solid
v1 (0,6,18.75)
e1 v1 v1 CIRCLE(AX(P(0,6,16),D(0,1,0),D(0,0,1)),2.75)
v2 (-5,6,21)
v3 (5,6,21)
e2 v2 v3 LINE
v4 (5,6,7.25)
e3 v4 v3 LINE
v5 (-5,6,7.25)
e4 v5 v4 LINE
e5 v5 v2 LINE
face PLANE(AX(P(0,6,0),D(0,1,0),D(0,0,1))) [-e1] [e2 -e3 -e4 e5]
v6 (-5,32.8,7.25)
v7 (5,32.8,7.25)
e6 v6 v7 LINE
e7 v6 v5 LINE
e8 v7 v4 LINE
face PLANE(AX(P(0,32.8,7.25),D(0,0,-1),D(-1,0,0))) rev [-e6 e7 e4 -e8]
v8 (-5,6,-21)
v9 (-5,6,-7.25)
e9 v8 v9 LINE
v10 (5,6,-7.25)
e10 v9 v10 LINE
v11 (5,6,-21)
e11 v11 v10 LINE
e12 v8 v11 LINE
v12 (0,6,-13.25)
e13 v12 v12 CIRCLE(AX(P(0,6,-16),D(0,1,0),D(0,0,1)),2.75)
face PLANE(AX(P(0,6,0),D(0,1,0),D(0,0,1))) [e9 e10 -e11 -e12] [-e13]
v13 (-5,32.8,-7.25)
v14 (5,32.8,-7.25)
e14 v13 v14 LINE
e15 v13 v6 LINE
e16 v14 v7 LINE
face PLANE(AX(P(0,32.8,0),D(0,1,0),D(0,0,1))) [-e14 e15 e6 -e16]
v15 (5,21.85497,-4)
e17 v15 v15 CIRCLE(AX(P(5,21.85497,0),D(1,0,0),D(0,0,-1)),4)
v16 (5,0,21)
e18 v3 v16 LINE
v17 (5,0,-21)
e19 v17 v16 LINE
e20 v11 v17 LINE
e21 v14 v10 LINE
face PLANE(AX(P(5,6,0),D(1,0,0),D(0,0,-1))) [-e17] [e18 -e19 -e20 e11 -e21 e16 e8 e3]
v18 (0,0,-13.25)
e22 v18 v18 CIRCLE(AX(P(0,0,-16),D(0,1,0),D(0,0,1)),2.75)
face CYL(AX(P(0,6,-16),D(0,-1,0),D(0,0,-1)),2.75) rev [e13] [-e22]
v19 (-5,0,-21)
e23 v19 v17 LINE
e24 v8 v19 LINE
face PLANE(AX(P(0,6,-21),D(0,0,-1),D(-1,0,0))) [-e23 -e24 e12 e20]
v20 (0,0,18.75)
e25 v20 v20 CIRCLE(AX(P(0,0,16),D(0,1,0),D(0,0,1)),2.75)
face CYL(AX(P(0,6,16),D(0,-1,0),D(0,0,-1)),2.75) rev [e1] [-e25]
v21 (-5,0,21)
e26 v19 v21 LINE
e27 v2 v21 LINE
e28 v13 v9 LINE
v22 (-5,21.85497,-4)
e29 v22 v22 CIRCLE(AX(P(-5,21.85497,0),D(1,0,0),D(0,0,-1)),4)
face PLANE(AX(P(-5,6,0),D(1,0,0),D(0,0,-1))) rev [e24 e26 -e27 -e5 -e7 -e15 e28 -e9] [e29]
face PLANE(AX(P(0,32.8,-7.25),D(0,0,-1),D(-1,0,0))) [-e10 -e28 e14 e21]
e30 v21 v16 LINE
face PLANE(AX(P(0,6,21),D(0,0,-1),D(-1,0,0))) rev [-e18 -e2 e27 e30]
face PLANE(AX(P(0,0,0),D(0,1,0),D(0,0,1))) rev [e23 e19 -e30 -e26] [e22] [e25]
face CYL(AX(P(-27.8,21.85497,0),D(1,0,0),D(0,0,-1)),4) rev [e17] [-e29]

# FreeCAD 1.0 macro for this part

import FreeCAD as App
import Part
import Sketcher

V = App.Vector
Q = App.Units.Quantity


def add_polygon(sketch, points):
    """Adds a closed chain of lines whose ends are joined by coincident constraints."""
    first, n = sketch.GeometryCount, len(points)
    for a, b in zip(points, points[1:] + points[:1]):
        sketch.addGeometry(Part.LineSegment(App.Vector(*a, 0), App.Vector(*b, 0)), False)
    for i in range(n):
        sketch.addConstraint(Sketcher.Constraint("Coincident", first + i, 2, first + (i + 1) % n, 1))

doc = App.newDocument("Part")
params = doc.addObject("Spreadsheet::Sheet", "Params")
for row, (alias, value) in enumerate([
    ("sketch1_diameter", "5.5 mm"),
    ("sketch1_width", "10 mm"),
    ("sketch1_height", "13.75 mm"),
    ("pad1_length", "6 mm"),
    ("sketch2_diameter", "5.5 mm"),
    ("sketch2_width", "10 mm"),
    ("sketch2_height", "13.75 mm"),
    ("pad2_length", "6 mm"),
    ("sketch3_width", "10 mm"),
    ("sketch3_height", "14.5 mm"),
    ("pad3_length", "32.8 mm"),
    ("sketch4_diameter", "8 mm"),
    ("pocket1_length", "32.8 mm"),
], start=1):
    params.set(f"A{row}", alias)
    params.set(f"B{row}", "=" + value)
    params.setAlias(f"B{row}", alias)

body = doc.addObject("PartDesign::Body", "Body")

sketch1 = body.newObject("Sketcher::SketchObject", "Sketch")
sketch1.AttachmentSupport = (doc.getObject("XZ_Plane"), [""])
sketch1.MapMode = "FlatFace"
add_polygon(sketch1, [(-5, -21), (-5, -7.2), (5, -7.2), (5, -21)])
sketch1.addGeometry(Part.Circle(V(0, -16, 0), V(0, 0, 1), 2.8), False)
sketch1.addConstraint([
    Sketcher.Constraint("Vertical", 0),
    Sketcher.Constraint("Horizontal", 1),
    Sketcher.Constraint("Vertical", 2),
    Sketcher.Constraint("Horizontal", 3),
    Sketcher.Constraint("PointOnObject", 4, 3, -2),
    Sketcher.Constraint("Diameter", 4, Q("5.5 mm")),
    Sketcher.Constraint("DistanceX", 1, 1, 1, 2, Q("10 mm")),
    Sketcher.Constraint("DistanceY", 4, 3, -1, 1, Q("16 mm")),
    Sketcher.Constraint("DistanceX", 0, 2, -1, 1, Q("5 mm")),
    Sketcher.Constraint("DistanceY", 2, 2, -1, 1, Q("21 mm")),
    Sketcher.Constraint("DistanceY", 0, 1, 0, 2, Q("13.75 mm")),
])
sketch1.setExpression("Constraints[9]", "Params.sketch1_diameter")
sketch1.setExpression("Constraints[10]", "Params.sketch1_width")
sketch1.setExpression("Constraints[14]", "Params.sketch1_height")
pad1 = body.newObject("PartDesign::Pad", "Pad")
pad1.Profile = sketch1
pad1.setExpression("Length", "Params.pad1_length")
pad1.Reversed = True
body2 = doc.addObject("PartDesign::Body", "Body001")

sketch2 = body2.newObject("Sketcher::SketchObject", "Sketch001")
sketch2.AttachmentSupport = (doc.getObject("XZ_Plane001"), [""])
sketch2.MapMode = "FlatFace"
add_polygon(sketch2, [(-5, 7.2), (-5, 21), (5, 21), (5, 7.2)])
sketch2.addGeometry(Part.Circle(V(0, 16, 0), V(0, 0, 1), 2.8), False)
sketch2.addConstraint([
    Sketcher.Constraint("Vertical", 0),
    Sketcher.Constraint("Horizontal", 1),
    Sketcher.Constraint("Vertical", 2),
    Sketcher.Constraint("Horizontal", 3),
    Sketcher.Constraint("PointOnObject", 4, 3, -2),
    Sketcher.Constraint("Diameter", 4, Q("5.5 mm")),
    Sketcher.Constraint("DistanceX", 1, 1, 1, 2, Q("10 mm")),
    Sketcher.Constraint("DistanceY", -1, 1, 4, 3, Q("16 mm")),
    Sketcher.Constraint("DistanceX", 0, 2, -1, 1, Q("5 mm")),
    Sketcher.Constraint("DistanceY", -1, 1, 0, 2, Q("21 mm")),
    Sketcher.Constraint("DistanceY", 0, 1, 0, 2, Q("13.75 mm")),
])
sketch2.setExpression("Constraints[9]", "Params.sketch2_diameter")
sketch2.setExpression("Constraints[10]", "Params.sketch2_width")
sketch2.setExpression("Constraints[14]", "Params.sketch2_height")
pad2 = body2.newObject("PartDesign::Pad", "Pad001")
pad2.Profile = sketch2
pad2.setExpression("Length", "Params.pad2_length")
pad2.Reversed = True
body.AllowCompound = True
doc.recompute()

boolean = body.newObject("PartDesign::Boolean", "Boolean")
boolean.Type = "Fuse"
boolean.addObjects([body2])

sketch3 = body.newObject("Sketcher::SketchObject", "Sketch002")
sketch3.AttachmentSupport = (doc.getObject("XZ_Plane"), [""])
sketch3.MapMode = "FlatFace"
add_polygon(sketch3, [(-5, -7), (-5, 7), (5, 7), (5, -7)])
sketch3.addConstraint([
    Sketcher.Constraint("Vertical", 0),
    Sketcher.Constraint("Horizontal", 1),
    Sketcher.Constraint("Vertical", 2),
    Sketcher.Constraint("Horizontal", 3),
    Sketcher.Constraint("Symmetric", 0, 2, 2, 2, -1, 1),
    Sketcher.Constraint("DistanceX", 1, 1, 1, 2, Q("10 mm")),
    Sketcher.Constraint("DistanceY", 0, 1, 0, 2, Q("14.5 mm")),
])
sketch3.setExpression("Constraints[9]", "Params.sketch3_width")
sketch3.setExpression("Constraints[10]", "Params.sketch3_height")
pad3 = body.newObject("PartDesign::Pad", "Pad002")
pad3.Profile = sketch3
pad3.setExpression("Length", "Params.pad3_length")
pad3.Reversed = True

sketch4 = body.newObject("Sketcher::SketchObject", "Sketch003")
sketch4.AttachmentSupport = (doc.getObject("YZ_Plane"), [""])
sketch4.MapMode = "FlatFace"
sketch4.AttachmentOffset = App.Placement(V(0, 0, 5), App.Rotation())
sketch4.addGeometry(Part.Circle(V(21.9, 0, 0), V(0, 0, 1), 4), False)
sketch4.addConstraint([
    Sketcher.Constraint("PointOnObject", 0, 3, -1),
    Sketcher.Constraint("Diameter", 0, Q("8 mm")),
    Sketcher.Constraint("DistanceX", -1, 1, 0, 3, Q("21.85497 mm")),
])
sketch4.setExpression("Constraints[1]", "Params.sketch4_diameter")
pocket1 = body.newObject("PartDesign::Pocket", "Pocket")
pocket1.Profile = sketch4
pocket1.setExpression("Length", "Params.pocket1_length")

doc.recompute()
